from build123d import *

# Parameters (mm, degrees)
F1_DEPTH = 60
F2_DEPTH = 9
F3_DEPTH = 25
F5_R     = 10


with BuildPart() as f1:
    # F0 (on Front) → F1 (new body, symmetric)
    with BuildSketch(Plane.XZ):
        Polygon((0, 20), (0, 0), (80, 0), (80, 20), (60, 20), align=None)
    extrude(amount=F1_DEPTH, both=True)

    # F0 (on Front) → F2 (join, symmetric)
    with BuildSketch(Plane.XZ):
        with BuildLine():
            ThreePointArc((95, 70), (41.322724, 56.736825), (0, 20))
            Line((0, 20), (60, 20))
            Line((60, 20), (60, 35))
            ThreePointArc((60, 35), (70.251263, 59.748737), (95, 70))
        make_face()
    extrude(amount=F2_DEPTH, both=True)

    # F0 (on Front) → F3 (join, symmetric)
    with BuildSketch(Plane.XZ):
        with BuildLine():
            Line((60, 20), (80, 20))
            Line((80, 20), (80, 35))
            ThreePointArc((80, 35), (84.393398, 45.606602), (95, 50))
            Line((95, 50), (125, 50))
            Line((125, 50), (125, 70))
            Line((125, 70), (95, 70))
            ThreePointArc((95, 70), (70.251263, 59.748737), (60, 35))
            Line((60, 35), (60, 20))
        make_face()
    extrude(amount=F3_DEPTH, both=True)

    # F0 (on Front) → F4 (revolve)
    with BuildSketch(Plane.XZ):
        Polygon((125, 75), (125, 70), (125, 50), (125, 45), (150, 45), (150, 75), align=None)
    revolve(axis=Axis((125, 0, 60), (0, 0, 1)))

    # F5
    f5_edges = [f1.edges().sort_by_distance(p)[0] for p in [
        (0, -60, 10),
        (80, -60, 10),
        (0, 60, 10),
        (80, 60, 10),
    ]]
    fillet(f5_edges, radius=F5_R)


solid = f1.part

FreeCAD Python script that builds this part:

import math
import FreeCAD as App
import Part
import Sketcher


def edges_at(feature, points):
    """Names of the edges that pass closest to the given points."""
    edges = feature.Shape.Edges
    near = lambda p: min(range(len(edges)), key=lambda i: edges[i].distToShape(Part.Vertex(*p))[0])
    return sorted({f"Edge{near(p) + 1}" for p in points})


def add_polygon(sketch, points):
    """Adds a closed chain of lines whose ends are joined by coincident constraints."""
    first, n = sketch.GeometryCount, len(points)
    for a, b in zip(points, points[1:] + points[:1]):
        sketch.addGeometry(Part.LineSegment(App.Vector(*a, 0), App.Vector(*b, 0)), False)
    for i in range(n):
        sketch.addConstraint(Sketcher.Constraint("Coincident", first + i, 2, first + (i + 1) % n, 1))

doc = App.newDocument("Part")
params = doc.addObject("Spreadsheet::Sheet", "Params")
for row, (alias, value) in enumerate([
    ("sketch1_width", "80 mm"),
    ("sketch1_height", "20 mm"),
    ("pad1_length", "120 mm"),
    ("sketch2_radius", "35.000001 mm"),
    ("sketch2_width", "60 mm"),
    ("sketch2_height", "15 mm"),
    ("pad2_length", "18 mm"),
    ("sketch3_radius", "14.999999 mm"),
    ("sketch3_radius2", "35.000001 mm"),
    ("sketch3_width", "30 mm"),
    ("sketch3_height", "15 mm"),
    ("pad3_length", "50 mm"),
    ("sketch4_width", "25 mm"),
    ("sketch4_height", "30 mm"),
    ("revolution_angle", "360 deg"),
    ("fillet_radius", "10 mm"),
], start=1):
    params.set(f"A{row}", alias)
    params.set(f"B{row}", "=" + value)
    params.setAlias(f"B{row}", alias)

body = doc.addObject("PartDesign::Body", "Body")

sketch1 = doc.addObject("Sketcher::SketchObject", "Sketch")
body.addObject(sketch1)
sketch1.AttachmentSupport = (doc.XZ_Plane, [""])
sketch1.MapMode = "FlatFace"
add_polygon(sketch1, [(0, 20), (0, 0), (80, 0), (80, 20)])
sketch1.addConstraint(Sketcher.Constraint("Vertical", 0))
sketch1.addConstraint(Sketcher.Constraint("Horizontal", 1))
sketch1.addConstraint(Sketcher.Constraint("Vertical", 2))
sketch1.addConstraint(Sketcher.Constraint("Horizontal", 3))
sketch1.addConstraint(Sketcher.Constraint("Coincident", 0, 2, -1, 1))
sketch1.addConstraint(Sketcher.Constraint("DistanceX", 1, 1, 1, 2, 80.0))
sketch1.addConstraint(Sketcher.Constraint("DistanceY", 0, 2, 0, 1, 20.0))
sketch1.setExpression("Constraints[9]", "Params.sketch1_width")
sketch1.setExpression("Constraints[10]", "Params.sketch1_height")
pad1 = doc.addObject("PartDesign::Pad", "Pad")
body.addObject(pad1)
pad1.Profile = sketch1
pad1.setExpression("Length", "Params.pad1_length")
pad1.Midplane = True

sketch2 = doc.addObject("Sketcher::SketchObject", "Sketch001")
body.addObject(sketch2)
sketch2.AttachmentSupport = (doc.XZ_Plane, [""])
sketch2.MapMode = "FlatFace"
sketch2.addGeometry(Part.ArcOfCircle(Part.Circle(App.Vector(95, -45, 0), App.Vector(0, 0, 1), 115), math.radians(90), math.radians(146)), False)
sketch2.addGeometry(Part.LineSegment(App.Vector(0, 20, 0), App.Vector(60, 20, 0)), False)
sketch2.addGeometry(Part.LineSegment(App.Vector(60, 20, 0), App.Vector(60, 35, 0)), False)
sketch2.addGeometry(Part.ArcOfCircle(Part.Circle(App.Vector(95, 35, 0), App.Vector(0, 0, 1), 35), math.radians(90), math.radians(180)), False)
sketch2.addConstraint(Sketcher.Constraint("Coincident", 0, 2, 1, 1))
sketch2.addConstraint(Sketcher.Constraint("Coincident", 1, 2, 2, 1))
sketch2.addConstraint(Sketcher.Constraint("Tangent", 2, 2, 3, 2))
sketch2.addConstraint(Sketcher.Constraint("Tangent", 3, 1, 0, 1))
sketch2.addConstraint(Sketcher.Constraint("Horizontal", 1))
sketch2.addConstraint(Sketcher.Constraint("Vertical", 2))
sketch2.addConstraint(Sketcher.Constraint("PointOnObject", 0, 2, -2))
sketch2.addConstraint(Sketcher.Constraint("Vertical", 0, 3, 3, 3))
sketch2.addConstraint(Sketcher.Constraint("Radius", 3, 35.000001))
sketch2.addConstraint(Sketcher.Constraint("DistanceX", 1, 1, 1, 2, 60.0))
sketch2.addConstraint(Sketcher.Constraint("DistanceY", 2, 1, 2, 2, 15.0))
sketch2.addConstraint(Sketcher.Constraint("DistanceY", -1, 1, 3, 3, 34.999999))
sketch2.setExpression("Constraints[8]", "Params.sketch2_radius")
sketch2.setExpression("Constraints[9]", "Params.sketch2_width")
sketch2.setExpression("Constraints[10]", "Params.sketch2_height")
pad2 = doc.addObject("PartDesign::Pad", "Pad001")
body.addObject(pad2)
pad2.Profile = sketch2
pad2.setExpression("Length", "Params.pad2_length")
pad2.Midplane = True

sketch3 = doc.addObject("Sketcher::SketchObject", "Sketch002")
body.addObject(sketch3)
sketch3.AttachmentSupport = (doc.XZ_Plane, [""])
sketch3.MapMode = "FlatFace"
sketch3.addGeometry(Part.LineSegment(App.Vector(60, 20, 0), App.Vector(80, 20, 0)), False)
sketch3.addGeometry(Part.LineSegment(App.Vector(80, 20, 0), App.Vector(80, 35, 0)), False)
sketch3.addGeometry(Part.ArcOfCircle(Part.Circle(App.Vector(95, 35, 0), App.Vector(0, 0, 1), 15), math.radians(90), math.radians(180)), False)
sketch3.addGeometry(Part.LineSegment(App.Vector(95, 50, 0), App.Vector(125, 50, 0)), False)
sketch3.addGeometry(Part.LineSegment(App.Vector(125, 50, 0), App.Vector(125, 70, 0)), False)
sketch3.addGeometry(Part.LineSegment(App.Vector(125, 70, 0), App.Vector(95, 70, 0)), False)
sketch3.addGeometry(Part.ArcOfCircle(Part.Circle(App.Vector(95, 35, 0), App.Vector(0, 0, 1), 35), math.radians(90), math.radians(180)), False)
sketch3.addGeometry(Part.LineSegment(App.Vector(60, 35, 0), App.Vector(60, 20, 0)), False)
sketch3.addConstraint(Sketcher.Constraint("Coincident", 0, 2, 1, 1))
sketch3.addConstraint(Sketcher.Constraint("Tangent", 1, 2, 2, 2))
sketch3.addConstraint(Sketcher.Constraint("Tangent", 2, 1, 3, 1))
sketch3.addConstraint(Sketcher.Constraint("Coincident", 3, 2, 4, 1))
sketch3.addConstraint(Sketcher.Constraint("Coincident", 4, 2, 5, 1))
sketch3.addConstraint(Sketcher.Constraint("Tangent", 5, 2, 6, 1))
sketch3.addConstraint(Sketcher.Constraint("Tangent", 6, 2, 7, 1))
sketch3.addConstraint(Sketcher.Constraint("Coincident", 7, 2, 0, 1))
sketch3.addConstraint(Sketcher.Constraint("Horizontal", 0))
sketch3.addConstraint(Sketcher.Constraint("Vertical", 1))
sketch3.addConstraint(Sketcher.Constraint("Horizontal", 3))
sketch3.addConstraint(Sketcher.Constraint("Vertical", 4))
sketch3.addConstraint(Sketcher.Constraint("Horizontal", 5))
sketch3.addConstraint(Sketcher.Constraint("Vertical", 7))
sketch3.addConstraint(Sketcher.Constraint("Coincident", 6, 3, 2, 3))
sketch3.addConstraint(Sketcher.Constraint("Radius", 2, 14.999999))
sketch3.addConstraint(Sketcher.Constraint("Radius", 6, 35.000001))
sketch3.addConstraint(Sketcher.Constraint("DistanceX", 3, 1, 3, 2, 30.0))
sketch3.addConstraint(Sketcher.Constraint("DistanceY", 1, 1, 1, 2, 15.0))
sketch3.addConstraint(Sketcher.Constraint("DistanceX", -1, 1, 2, 3, 94.999999))
sketch3.addConstraint(Sketcher.Constraint("DistanceY", -1, 1, 2, 3, 35.000001))
sketch3.setExpression("Constraints[15]", "Params.sketch3_radius")
sketch3.setExpression("Constraints[16]", "Params.sketch3_radius2")
sketch3.setExpression("Constraints[17]", "Params.sketch3_width")
sketch3.setExpression("Constraints[18]", "Params.sketch3_height")
pad3 = doc.addObject("PartDesign::Pad", "Pad002")
body.addObject(pad3)
pad3.Profile = sketch3
pad3.setExpression("Length", "Params.pad3_length")
pad3.Midplane = True

sketch4 = doc.addObject("Sketcher::SketchObject", "Sketch003")
body.addObject(sketch4)
sketch4.AttachmentSupport = (doc.XZ_Plane, [""])
sketch4.MapMode = "FlatFace"
add_polygon(sketch4, [(125, 75), (125, 45), (150, 45), (150, 75)])
sketch4.addGeometry(Part.LineSegment(App.Vector(125, 45, 0), App.Vector(125, 75, 0)), True)
sketch4.addConstraint(Sketcher.Constraint("Vertical", 0))
sketch4.addConstraint(Sketcher.Constraint("Horizontal", 1))
sketch4.addConstraint(Sketcher.Constraint("Vertical", 2))
sketch4.addConstraint(Sketcher.Constraint("Horizontal", 3))
sketch4.addConstraint(Sketcher.Constraint("Vertical", 4))
sketch4.addConstraint(Sketcher.Constraint("Coincident", 4, 1, 0, 2))
sketch4.addConstraint(Sketcher.Constraint("Horizontal", 2, 2, 4, 2))
sketch4.addConstraint(Sketcher.Constraint("DistanceX", 1, 1, 1, 2, 25.0))
sketch4.addConstraint(Sketcher.Constraint("DistanceY", 0, 2, 0, 1, 30.0))
sketch4.addConstraint(Sketcher.Constraint("DistanceX", -1, 1, 0, 2, 125.0))
sketch4.addConstraint(Sketcher.Constraint("DistanceY", -1, 1, 0, 2, 45.0))
sketch4.setExpression("Constraints[11]", "Params.sketch4_width")
sketch4.setExpression("Constraints[12]", "Params.sketch4_height")
revolution = doc.addObject("PartDesign::Revolution", "Revolution")
body.addObject(revolution)
revolution.Profile = sketch4
revolution.ReferenceAxis = (sketch4, ["Axis0"])
revolution.setExpression("Angle", "Params.revolution_angle")
doc.recompute()

fillet = doc.addObject("PartDesign::Fillet", "Fillet")
body.addObject(fillet)
fillet.Base = (revolution, edges_at(revolution, [
    (0, -60, 10),
    (80, -60, 10),
    (0, 60, 10),
    (80, 60, 10),
]))
fillet.setExpression("Radius", "Params.fillet_radius")

doc.recompute()
